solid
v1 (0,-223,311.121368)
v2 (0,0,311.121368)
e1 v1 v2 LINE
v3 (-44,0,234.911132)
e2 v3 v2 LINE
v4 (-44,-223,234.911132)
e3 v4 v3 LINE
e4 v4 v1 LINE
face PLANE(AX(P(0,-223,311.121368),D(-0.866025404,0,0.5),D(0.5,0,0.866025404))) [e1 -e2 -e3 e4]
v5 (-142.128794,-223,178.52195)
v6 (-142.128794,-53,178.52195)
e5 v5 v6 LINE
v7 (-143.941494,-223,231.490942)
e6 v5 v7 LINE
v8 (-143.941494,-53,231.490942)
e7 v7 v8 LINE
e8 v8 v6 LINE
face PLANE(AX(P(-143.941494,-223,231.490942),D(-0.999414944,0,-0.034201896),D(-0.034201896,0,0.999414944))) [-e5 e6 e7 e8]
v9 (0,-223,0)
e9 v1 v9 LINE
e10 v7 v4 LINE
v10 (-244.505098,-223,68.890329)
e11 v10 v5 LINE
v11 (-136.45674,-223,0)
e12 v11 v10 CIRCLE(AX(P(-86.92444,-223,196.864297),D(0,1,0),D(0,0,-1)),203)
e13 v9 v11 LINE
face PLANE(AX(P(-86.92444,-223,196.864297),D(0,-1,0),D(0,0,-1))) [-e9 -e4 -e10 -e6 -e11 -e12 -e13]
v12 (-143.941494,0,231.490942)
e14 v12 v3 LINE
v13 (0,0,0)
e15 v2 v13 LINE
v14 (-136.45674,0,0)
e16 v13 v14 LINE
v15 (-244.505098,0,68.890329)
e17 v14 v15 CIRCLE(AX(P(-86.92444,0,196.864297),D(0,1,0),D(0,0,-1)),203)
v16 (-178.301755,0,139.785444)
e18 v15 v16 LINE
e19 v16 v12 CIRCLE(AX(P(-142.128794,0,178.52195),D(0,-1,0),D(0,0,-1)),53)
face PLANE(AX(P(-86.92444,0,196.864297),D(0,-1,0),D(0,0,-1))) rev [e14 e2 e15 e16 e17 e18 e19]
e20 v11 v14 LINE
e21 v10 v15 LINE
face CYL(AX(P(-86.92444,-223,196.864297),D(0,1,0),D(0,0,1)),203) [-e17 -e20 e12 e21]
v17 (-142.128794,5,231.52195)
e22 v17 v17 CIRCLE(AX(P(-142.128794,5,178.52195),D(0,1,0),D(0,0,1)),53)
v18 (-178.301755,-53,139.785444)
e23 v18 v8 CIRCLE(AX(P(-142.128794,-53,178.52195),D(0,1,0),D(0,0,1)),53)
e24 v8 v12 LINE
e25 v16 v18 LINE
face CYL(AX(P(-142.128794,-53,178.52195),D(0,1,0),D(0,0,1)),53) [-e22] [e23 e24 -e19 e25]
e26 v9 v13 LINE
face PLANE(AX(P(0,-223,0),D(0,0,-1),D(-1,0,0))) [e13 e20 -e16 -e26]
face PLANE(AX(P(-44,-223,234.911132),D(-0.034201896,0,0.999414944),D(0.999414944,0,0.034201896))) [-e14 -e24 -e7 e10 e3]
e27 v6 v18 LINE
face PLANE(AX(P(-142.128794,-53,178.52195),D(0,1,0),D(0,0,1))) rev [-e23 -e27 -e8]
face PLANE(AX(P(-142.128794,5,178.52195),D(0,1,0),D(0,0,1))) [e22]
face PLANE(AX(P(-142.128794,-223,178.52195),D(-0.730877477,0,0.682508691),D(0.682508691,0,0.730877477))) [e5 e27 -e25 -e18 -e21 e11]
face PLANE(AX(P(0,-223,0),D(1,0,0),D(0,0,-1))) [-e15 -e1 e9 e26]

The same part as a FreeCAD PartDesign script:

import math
import FreeCAD as App
import Part
import Sketcher
Q = App.Units.Quantity

doc = App.newDocument("Part")
body = doc.addObject("PartDesign::Body", "Body")

# Sketch on XZ plane
sketch1 = body.newObject("Sketcher::SketchObject", "Sketch")
sketch1.AttachmentSupport = (doc.getObject("XZ_Plane"), [""])
sketch1.MapMode = "FlatFace"
sketch1.addGeometry([
    Part.LineSegment(App.Vector(0, 311, 0), App.Vector(0, 0, 0)),  # 0
    Part.LineSegment(App.Vector(0, 0, 0), App.Vector(-136, 0, 0)),  # 1
    Part.ArcOfCircle(Part.Circle(App.Vector(-87, 197, 0), App.Vector(0, 0, 1), 203), math.radians(-141), math.radians(-104)),  # 2
    Part.LineSegment(App.Vector(-245, 69, 0), App.Vector(-142, 179, 0)),  # 3
    Part.LineSegment(App.Vector(-142, 179, 0), App.Vector(-144, 231, 0)),  # 4
    Part.LineSegment(App.Vector(-144, 231, 0), App.Vector(-44, 235, 0)),  # 5
    Part.LineSegment(App.Vector(-44, 235, 0), App.Vector(0, 311, 0)),  # 6
], False)
sketch1.addConstraint([
    Sketcher.Constraint("Coincident", 0, 2, 1, 1),
    Sketcher.Constraint("Coincident", 1, 2, 2, 2),
    Sketcher.Constraint("Coincident", 2, 1, 3, 1),
    Sketcher.Constraint("Coincident", 3, 2, 4, 1),
    Sketcher.Constraint("Coincident", 4, 2, 5, 1),
    Sketcher.Constraint("Coincident", 5, 2, 6, 1),
    Sketcher.Constraint("Coincident", 6, 2, 0, 1),
    Sketcher.Constraint("Vertical", 0),
    Sketcher.Constraint("Horizontal", 1),
    Sketcher.Constraint("Coincident", 0, 2, -1, 1),
    Sketcher.Constraint("Perpendicular", 4, 5),
    Sketcher.Constraint("Radius", 2, Q("203 mm")),
    Sketcher.Constraint("Angle", 6, Q("60 deg")),
    Sketcher.Constraint("Distance", 3, Q("150 mm")),
    Sketcher.Constraint("Distance", 4, Q("53 mm")),
    Sketcher.Constraint("Distance", 5, Q("100 mm")),
    Sketcher.Constraint("Distance", 6, Q("88 mm")),
    Sketcher.Constraint("Angle", 3, Q("46.960007 deg")),
    Sketcher.Constraint("Angle", 4, Q("91.960007 deg")),
    Sketcher.Constraint("DistanceX", 1, 2, 1, 1, Q("136.45674 mm")),
    Sketcher.Constraint("DistanceX", 1, 2, 2, 3, Q("49.5323 mm")),
])
pad1 = body.newObject("PartDesign::Pad", "Pad")
pad1.Profile = sketch1
pad1.Length = 223

# Sketch on XZ plane
sketch2 = body.newObject("Sketcher::SketchObject", "Sketch001")
sketch2.AttachmentSupport = (doc.getObject("XZ_Plane"), [""])
sketch2.MapMode = "FlatFace"
sketch2.addGeometry(Part.Circle(App.Vector(-142, 179, 0), App.Vector(0, 0, 1), 53), False)
sketch2.addConstraint([
    Sketcher.Constraint("Diameter", 0, Q("106 mm")),
    Sketcher.Constraint("DistanceY", -1, 1, 0, 3, Q("178.52195 mm")),
    Sketcher.Constraint("DistanceX", 0, 3, -1, 1, Q("142.128794 mm")),
])
pad2 = body.newObject("PartDesign::Pad", "Pad001")
pad2.Profile = sketch2
pad2.Type = "TwoLengths"
pad2.Length = 5
pad2.Length2 = 53
pad2.Reversed = True

doc.recompute()
